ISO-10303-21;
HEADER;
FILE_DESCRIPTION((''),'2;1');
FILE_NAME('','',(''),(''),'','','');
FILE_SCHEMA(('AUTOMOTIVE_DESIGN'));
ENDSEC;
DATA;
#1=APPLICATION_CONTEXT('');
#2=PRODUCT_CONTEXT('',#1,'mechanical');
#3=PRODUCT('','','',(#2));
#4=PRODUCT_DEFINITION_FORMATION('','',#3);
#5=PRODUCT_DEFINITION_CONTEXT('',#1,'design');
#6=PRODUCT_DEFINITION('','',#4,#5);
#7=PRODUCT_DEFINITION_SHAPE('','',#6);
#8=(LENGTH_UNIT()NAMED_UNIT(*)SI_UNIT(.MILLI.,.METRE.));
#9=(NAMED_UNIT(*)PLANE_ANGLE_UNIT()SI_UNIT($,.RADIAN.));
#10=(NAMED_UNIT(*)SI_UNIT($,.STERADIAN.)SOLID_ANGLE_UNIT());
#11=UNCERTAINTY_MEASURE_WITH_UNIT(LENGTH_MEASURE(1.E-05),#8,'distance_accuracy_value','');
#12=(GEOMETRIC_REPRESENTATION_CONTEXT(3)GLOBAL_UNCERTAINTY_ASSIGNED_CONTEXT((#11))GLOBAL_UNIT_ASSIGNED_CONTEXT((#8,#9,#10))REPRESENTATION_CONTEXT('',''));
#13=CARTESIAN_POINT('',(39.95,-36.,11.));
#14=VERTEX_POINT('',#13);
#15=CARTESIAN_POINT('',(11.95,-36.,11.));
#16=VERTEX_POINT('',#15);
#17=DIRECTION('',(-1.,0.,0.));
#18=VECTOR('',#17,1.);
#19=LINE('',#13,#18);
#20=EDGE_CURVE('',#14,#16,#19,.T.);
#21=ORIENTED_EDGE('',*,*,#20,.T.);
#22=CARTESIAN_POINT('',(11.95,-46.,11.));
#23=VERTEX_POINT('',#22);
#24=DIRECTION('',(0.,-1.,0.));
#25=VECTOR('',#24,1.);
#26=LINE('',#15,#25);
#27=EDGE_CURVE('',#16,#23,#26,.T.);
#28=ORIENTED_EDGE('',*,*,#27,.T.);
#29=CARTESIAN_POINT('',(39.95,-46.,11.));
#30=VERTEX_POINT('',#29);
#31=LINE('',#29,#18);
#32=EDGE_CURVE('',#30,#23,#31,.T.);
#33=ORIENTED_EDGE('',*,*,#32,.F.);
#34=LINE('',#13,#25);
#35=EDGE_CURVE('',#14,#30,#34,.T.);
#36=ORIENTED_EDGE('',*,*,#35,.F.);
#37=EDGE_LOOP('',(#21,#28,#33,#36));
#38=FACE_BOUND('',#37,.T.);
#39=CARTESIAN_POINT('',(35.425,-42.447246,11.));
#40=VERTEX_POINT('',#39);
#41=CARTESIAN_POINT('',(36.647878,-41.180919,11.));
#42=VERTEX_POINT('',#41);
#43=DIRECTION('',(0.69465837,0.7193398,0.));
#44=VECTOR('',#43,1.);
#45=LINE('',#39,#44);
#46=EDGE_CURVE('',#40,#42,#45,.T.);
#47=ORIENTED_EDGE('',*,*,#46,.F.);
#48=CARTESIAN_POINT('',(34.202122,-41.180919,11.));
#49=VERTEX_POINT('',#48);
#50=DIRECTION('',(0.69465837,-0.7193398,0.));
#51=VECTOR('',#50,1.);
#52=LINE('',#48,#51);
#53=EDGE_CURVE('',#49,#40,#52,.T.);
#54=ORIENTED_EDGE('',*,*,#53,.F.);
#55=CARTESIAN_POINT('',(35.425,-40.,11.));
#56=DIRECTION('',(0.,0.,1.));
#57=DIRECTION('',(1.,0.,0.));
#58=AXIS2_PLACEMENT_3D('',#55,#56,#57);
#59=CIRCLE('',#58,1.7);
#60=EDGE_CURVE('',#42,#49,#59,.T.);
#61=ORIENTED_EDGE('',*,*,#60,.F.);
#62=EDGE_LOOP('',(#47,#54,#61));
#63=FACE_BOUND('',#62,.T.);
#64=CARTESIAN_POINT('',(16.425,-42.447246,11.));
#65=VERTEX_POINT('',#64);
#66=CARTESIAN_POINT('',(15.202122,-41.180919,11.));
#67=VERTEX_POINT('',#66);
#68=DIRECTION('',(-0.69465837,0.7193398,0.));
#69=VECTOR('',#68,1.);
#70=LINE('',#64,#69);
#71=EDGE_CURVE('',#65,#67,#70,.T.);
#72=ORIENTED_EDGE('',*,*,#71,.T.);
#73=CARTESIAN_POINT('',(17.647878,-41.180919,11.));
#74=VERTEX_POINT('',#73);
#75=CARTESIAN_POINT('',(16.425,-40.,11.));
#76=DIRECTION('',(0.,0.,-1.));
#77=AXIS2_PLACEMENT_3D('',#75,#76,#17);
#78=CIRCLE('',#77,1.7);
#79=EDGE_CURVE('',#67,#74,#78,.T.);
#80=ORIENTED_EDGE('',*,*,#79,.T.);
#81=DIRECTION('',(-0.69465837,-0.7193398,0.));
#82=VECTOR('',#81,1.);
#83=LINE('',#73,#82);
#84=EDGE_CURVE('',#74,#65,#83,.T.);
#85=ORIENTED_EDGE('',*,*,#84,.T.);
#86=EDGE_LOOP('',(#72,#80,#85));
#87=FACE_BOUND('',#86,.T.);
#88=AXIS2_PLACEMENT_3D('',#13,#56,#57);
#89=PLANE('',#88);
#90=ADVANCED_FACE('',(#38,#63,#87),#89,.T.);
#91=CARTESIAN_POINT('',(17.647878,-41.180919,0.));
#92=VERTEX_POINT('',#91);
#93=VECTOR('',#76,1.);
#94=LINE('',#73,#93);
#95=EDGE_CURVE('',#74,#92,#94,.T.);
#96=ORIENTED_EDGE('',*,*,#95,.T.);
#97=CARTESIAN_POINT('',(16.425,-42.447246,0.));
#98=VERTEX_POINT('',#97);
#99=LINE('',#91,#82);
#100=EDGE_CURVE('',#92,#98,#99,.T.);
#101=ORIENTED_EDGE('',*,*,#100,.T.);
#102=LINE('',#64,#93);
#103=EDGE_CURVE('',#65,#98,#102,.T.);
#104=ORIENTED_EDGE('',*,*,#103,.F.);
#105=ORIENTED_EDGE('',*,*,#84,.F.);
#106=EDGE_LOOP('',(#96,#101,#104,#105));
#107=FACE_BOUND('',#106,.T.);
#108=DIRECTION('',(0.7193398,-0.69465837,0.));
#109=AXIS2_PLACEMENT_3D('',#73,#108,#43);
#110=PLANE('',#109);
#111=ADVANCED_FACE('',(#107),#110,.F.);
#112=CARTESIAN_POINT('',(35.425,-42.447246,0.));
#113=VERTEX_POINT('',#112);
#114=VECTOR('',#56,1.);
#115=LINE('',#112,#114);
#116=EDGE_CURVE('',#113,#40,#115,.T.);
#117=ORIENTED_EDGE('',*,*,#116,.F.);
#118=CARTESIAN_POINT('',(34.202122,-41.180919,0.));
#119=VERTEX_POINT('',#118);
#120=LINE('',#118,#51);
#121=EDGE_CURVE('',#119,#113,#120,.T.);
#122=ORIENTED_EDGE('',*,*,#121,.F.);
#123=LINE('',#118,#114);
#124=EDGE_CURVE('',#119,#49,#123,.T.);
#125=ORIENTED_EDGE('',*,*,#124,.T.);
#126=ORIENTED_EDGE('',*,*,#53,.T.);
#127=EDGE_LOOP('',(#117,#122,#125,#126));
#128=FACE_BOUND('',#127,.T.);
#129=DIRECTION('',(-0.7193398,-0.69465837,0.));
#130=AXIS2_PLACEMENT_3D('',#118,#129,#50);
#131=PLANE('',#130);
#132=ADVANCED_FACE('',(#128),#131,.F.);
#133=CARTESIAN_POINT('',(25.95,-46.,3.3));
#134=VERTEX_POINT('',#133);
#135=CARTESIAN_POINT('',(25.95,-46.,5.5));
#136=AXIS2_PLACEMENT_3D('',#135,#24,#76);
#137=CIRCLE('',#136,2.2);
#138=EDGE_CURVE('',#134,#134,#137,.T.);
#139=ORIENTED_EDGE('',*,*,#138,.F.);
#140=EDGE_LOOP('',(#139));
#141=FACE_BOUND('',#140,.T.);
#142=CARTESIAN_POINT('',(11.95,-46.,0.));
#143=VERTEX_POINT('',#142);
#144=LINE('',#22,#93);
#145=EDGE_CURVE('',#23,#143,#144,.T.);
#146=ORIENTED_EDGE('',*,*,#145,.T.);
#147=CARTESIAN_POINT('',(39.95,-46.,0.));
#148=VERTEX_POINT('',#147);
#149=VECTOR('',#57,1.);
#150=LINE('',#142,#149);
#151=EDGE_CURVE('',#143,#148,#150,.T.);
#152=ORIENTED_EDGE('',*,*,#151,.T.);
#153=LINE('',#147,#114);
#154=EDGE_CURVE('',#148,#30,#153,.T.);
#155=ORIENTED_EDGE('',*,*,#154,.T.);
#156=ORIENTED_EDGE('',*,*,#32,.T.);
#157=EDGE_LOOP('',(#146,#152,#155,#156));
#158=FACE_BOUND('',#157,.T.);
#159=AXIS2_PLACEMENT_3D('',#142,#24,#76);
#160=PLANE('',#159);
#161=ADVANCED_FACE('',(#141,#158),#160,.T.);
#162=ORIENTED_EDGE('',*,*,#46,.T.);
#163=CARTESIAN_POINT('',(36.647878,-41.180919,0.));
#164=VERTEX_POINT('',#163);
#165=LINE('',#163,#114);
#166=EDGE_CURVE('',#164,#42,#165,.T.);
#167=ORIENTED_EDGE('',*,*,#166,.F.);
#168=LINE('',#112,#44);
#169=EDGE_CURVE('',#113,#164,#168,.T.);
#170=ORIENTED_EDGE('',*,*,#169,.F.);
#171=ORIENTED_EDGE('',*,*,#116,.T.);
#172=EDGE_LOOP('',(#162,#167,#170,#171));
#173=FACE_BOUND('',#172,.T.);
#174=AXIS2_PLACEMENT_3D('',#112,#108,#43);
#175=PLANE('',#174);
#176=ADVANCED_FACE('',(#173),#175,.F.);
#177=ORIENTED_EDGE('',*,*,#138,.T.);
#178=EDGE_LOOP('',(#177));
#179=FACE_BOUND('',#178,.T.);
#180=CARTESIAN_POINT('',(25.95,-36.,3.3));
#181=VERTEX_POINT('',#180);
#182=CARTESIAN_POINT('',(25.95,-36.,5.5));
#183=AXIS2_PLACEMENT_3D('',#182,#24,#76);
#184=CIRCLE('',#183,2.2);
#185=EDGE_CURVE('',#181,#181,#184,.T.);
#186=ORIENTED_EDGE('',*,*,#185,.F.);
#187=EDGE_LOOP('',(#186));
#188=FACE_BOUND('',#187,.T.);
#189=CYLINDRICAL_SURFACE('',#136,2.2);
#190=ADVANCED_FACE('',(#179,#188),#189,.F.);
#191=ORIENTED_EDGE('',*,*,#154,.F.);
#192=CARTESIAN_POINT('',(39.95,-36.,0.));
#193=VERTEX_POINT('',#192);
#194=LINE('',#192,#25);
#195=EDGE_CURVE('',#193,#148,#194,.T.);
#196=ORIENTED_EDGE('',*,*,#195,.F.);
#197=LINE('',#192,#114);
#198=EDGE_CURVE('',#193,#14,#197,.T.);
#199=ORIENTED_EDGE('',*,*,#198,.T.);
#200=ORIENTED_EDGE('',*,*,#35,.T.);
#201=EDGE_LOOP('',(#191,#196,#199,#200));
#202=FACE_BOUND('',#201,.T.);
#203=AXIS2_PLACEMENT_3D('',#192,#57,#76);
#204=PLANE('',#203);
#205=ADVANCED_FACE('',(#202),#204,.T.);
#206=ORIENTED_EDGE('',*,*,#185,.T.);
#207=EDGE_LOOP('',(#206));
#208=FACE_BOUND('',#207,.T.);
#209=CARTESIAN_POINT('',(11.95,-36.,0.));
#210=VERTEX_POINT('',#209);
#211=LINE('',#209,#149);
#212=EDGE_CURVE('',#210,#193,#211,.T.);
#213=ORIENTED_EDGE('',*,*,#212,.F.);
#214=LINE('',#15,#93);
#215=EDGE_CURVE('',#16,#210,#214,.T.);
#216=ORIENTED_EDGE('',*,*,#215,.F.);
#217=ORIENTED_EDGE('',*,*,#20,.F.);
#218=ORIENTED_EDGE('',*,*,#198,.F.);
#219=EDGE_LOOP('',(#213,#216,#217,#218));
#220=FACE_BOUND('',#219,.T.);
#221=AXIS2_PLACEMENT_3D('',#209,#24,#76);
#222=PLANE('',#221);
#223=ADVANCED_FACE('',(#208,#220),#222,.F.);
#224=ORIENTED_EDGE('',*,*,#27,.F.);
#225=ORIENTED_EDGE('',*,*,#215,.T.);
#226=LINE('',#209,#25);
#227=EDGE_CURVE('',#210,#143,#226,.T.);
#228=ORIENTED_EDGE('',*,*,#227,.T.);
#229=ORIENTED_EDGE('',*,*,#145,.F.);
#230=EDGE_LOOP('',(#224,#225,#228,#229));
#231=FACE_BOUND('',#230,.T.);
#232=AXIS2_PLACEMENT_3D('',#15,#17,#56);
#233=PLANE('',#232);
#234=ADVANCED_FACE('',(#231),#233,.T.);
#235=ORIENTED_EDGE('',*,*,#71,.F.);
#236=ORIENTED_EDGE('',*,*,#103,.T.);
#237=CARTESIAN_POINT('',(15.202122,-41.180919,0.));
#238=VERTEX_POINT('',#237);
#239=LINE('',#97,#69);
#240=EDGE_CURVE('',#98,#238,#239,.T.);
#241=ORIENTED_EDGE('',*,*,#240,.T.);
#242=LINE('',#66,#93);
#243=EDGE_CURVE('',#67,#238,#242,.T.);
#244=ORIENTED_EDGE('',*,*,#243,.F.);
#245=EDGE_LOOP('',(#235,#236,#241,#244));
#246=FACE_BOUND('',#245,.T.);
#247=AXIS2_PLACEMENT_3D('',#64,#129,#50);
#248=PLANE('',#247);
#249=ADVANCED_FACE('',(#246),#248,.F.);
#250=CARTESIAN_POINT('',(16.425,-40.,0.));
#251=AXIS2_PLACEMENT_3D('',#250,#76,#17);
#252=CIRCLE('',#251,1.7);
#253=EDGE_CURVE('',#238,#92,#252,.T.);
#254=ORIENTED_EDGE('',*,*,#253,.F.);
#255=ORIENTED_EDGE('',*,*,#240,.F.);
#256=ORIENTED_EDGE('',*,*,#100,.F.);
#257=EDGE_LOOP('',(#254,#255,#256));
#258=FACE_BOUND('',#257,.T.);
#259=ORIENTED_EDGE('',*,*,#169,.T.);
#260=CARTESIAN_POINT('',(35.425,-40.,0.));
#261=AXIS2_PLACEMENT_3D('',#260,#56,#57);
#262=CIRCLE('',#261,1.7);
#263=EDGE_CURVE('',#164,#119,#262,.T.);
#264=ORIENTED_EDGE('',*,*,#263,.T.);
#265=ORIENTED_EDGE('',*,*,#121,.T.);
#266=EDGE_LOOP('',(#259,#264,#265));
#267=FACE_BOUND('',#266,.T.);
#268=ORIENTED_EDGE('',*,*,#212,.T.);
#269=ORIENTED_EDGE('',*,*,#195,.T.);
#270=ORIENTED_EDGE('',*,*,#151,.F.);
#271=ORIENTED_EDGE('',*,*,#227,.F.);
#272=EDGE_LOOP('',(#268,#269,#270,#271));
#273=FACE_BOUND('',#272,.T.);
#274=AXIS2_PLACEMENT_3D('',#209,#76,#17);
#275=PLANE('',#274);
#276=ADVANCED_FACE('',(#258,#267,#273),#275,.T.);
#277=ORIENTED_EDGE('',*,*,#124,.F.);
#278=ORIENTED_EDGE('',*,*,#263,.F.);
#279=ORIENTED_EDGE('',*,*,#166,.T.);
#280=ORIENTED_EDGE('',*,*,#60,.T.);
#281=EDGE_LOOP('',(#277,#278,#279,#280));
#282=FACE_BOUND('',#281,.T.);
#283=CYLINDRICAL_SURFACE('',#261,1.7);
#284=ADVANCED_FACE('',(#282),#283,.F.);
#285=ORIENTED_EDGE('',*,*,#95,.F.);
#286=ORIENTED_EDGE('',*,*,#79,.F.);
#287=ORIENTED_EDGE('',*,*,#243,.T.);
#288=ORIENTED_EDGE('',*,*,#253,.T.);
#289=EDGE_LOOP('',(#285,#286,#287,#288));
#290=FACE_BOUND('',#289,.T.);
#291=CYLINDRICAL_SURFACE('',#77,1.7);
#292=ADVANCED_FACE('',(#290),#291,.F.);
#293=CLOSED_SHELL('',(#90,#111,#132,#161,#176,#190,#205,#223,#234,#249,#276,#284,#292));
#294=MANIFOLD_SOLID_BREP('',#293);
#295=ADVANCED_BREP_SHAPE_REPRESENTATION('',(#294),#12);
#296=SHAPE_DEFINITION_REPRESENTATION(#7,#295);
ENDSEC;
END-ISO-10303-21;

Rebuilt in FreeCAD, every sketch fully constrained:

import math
import FreeCAD as App
import Part
import Sketcher
Q = App.Units.Quantity

doc = App.newDocument("Part")
params = doc.addObject("Spreadsheet::Sheet", "Params")
for row, (alias, value) in enumerate([
    ("sketch1_width", "28 mm"),
    ("sketch1_height", "11 mm"),
    ("pad1_length", "10 mm"),
    ("sketch2_radius", "1.7 mm"),
    ("sketch3_radius", "1.7 mm"),
    ("sketch4_diameter", "4.4 mm"),
    ("hole_diameter", "4.4 mm"),
], start=1):
    params.set(f"A{row}", alias)
    params.set(f"B{row}", "=" + value)
    params.setAlias(f"B{row}", alias)

body = doc.addObject("PartDesign::Body", "Body")

# Sketch on XZ plane
sketch1 = doc.addObject("Sketcher::SketchObject", "Sketch")
body.addObject(sketch1)
sketch1.AttachmentSupport = (doc.XZ_Plane, [""])
sketch1.MapMode = "FlatFace"
sketch1.AttachmentOffset = App.Placement(App.Vector(0, 0, 46), App.Rotation())
sketch1.addGeometry(Part.LineSegment(App.Vector(12, 11, 0), App.Vector(12, 0, 0)), False)
sketch1.addGeometry(Part.LineSegment(App.Vector(12, 0, 0), App.Vector(40, 0, 0)), False)
sketch1.addGeometry(Part.LineSegment(App.Vector(40, 0, 0), App.Vector(40, 11, 0)), False)
sketch1.addGeometry(Part.LineSegment(App.Vector(40, 11, 0), App.Vector(12, 11, 0)), False)
sketch1.addConstraint(Sketcher.Constraint("Coincident", 0, 2, 1, 1))
sketch1.addConstraint(Sketcher.Constraint("Coincident", 1, 2, 2, 1))
sketch1.addConstraint(Sketcher.Constraint("Coincident", 2, 2, 3, 1))
sketch1.addConstraint(Sketcher.Constraint("Coincident", 3, 2, 0, 1))
sketch1.addConstraint(Sketcher.Constraint("Vertical", 0))
sketch1.addConstraint(Sketcher.Constraint("Horizontal", 1))
sketch1.addConstraint(Sketcher.Constraint("Vertical", 2))
sketch1.addConstraint(Sketcher.Constraint("Horizontal", 3))
sketch1.addConstraint(Sketcher.Constraint("PointOnObject", 0, 2, -1))
sketch1.addConstraint(Sketcher.Constraint("DistanceX", 1, 1, 1, 2, Q("28 mm")))
sketch1.addConstraint(Sketcher.Constraint("DistanceY", 0, 2, 0, 1, Q("11 mm")))
sketch1.addConstraint(Sketcher.Constraint("DistanceX", -1, 1, 0, 2, Q("11.95 mm")))
sketch1.setExpression("Constraints[9]", "Params.sketch1_width")
sketch1.setExpression("Constraints[10]", "Params.sketch1_height")
pad1 = doc.addObject("PartDesign::Pad", "Pad")
body.addObject(pad1)
pad1.Profile = sketch1
pad1.setExpression("Length", "Params.pad1_length")
pad1.Reversed = True

# Sketch on XY plane
sketch2 = doc.addObject("Sketcher::SketchObject", "Sketch001")
body.addObject(sketch2)
sketch2.AttachmentSupport = (doc.XY_Plane, [""])
sketch2.MapMode = "FlatFace"
sketch2.AttachmentOffset = App.Placement(App.Vector(0, 0, 11), App.Rotation())
sketch2.addGeometry(Part.LineSegment(App.Vector(35.4, -42.4, 0), App.Vector(36.6, -41.2, 0)), False)
sketch2.addGeometry(Part.ArcOfCircle(Part.Circle(App.Vector(35.4, -40, 0), App.Vector(0, 0, 1), 1.7), math.radians(-44), math.radians(224)), False)
sketch2.addGeometry(Part.LineSegment(App.Vector(34.2, -41.2, 0), App.Vector(35.4, -42.4, 0)), False)
sketch2.addConstraint(Sketcher.Constraint("Tangent", 0, 2, 1, 1))
sketch2.addConstraint(Sketcher.Constraint("Tangent", 1, 2, 2, 1))
sketch2.addConstraint(Sketcher.Constraint("Coincident", 2, 2, 0, 1))
sketch2.addConstraint(Sketcher.Constraint("Horizontal", 0, 2, 1, 2))
sketch2.addConstraint(Sketcher.Constraint("Radius", 1, Q("1.7 mm")))
sketch2.addConstraint(Sketcher.Constraint("Angle", 0, Q("46 deg")))
sketch2.addConstraint(Sketcher.Constraint("DistanceY", 1, 3, -1, 1, Q("40 mm")))
sketch2.addConstraint(Sketcher.Constraint("DistanceX", -1, 1, 1, 3, Q("35.425 mm")))
sketch2.setExpression("Constraints[4]", "Params.sketch2_radius")
pocket1 = doc.addObject("PartDesign::Pocket", "Pocket")
body.addObject(pocket1)
pocket1.Profile = sketch2
pocket1.Type = "ThroughAll"

# Sketch on XY plane
sketch3 = doc.addObject("Sketcher::SketchObject", "Sketch002")
body.addObject(sketch3)
sketch3.AttachmentSupport = (doc.XY_Plane, [""])
sketch3.MapMode = "FlatFace"
sketch3.addGeometry(Part.LineSegment(App.Vector(17.6, -41.2, 0), App.Vector(16.4, -42.4, 0)), False)
sketch3.addGeometry(Part.LineSegment(App.Vector(16.4, -42.4, 0), App.Vector(15.2, -41.2, 0)), False)
sketch3.addGeometry(Part.ArcOfCircle(Part.Circle(App.Vector(16.4, -40, 0), App.Vector(0, 0, 1), 1.7), math.radians(-44), math.radians(224)), False)
sketch3.addConstraint(Sketcher.Constraint("Coincident", 0, 2, 1, 1))
sketch3.addConstraint(Sketcher.Constraint("Tangent", 1, 2, 2, 2))
sketch3.addConstraint(Sketcher.Constraint("Tangent", 2, 1, 0, 1))
sketch3.addConstraint(Sketcher.Constraint("Horizontal", 1, 2, 2, 1))
sketch3.addConstraint(Sketcher.Constraint("Radius", 2, Q("1.7 mm")))
sketch3.addConstraint(Sketcher.Constraint("Angle", 0, Q("-134 deg")))
sketch3.addConstraint(Sketcher.Constraint("DistanceY", 2, 3, -1, 1, Q("40 mm")))
sketch3.addConstraint(Sketcher.Constraint("DistanceX", -1, 1, 2, 3, Q("16.425 mm")))
sketch3.setExpression("Constraints[4]", "Params.sketch3_radius")
pocket2 = doc.addObject("PartDesign::Pocket", "Pocket001")
body.addObject(pocket2)
pocket2.Profile = sketch3
pocket2.Type = "ThroughAll"
pocket2.Reversed = True

# Sketch on XZ plane
sketch4 = doc.addObject("Sketcher::SketchObject", "Sketch003")
body.addObject(sketch4)
sketch4.AttachmentSupport = (doc.XZ_Plane, [""])
sketch4.MapMode = "FlatFace"
sketch4.AttachmentOffset = App.Placement(App.Vector(0, 0, 46), App.Rotation())
sketch4.addGeometry(Part.Circle(App.Vector(25.9, 5.5, 0), App.Vector(0, 0, 1), 2.2), False)
sketch4.addConstraint(Sketcher.Constraint("Diameter", 0, Q("4.4 mm")))
sketch4.addConstraint(Sketcher.Constraint("DistanceY", -1, 1, 0, 3, Q("5.5 mm")))
sketch4.addConstraint(Sketcher.Constraint("DistanceX", -1, 1, 0, 3, Q("25.95 mm")))
sketch4.setExpression("Constraints[0]", "Params.sketch4_diameter")
doc.recompute()
hole = doc.addObject("PartDesign::Hole", "Hole")
body.addObject(hole)
hole.Profile = sketch4
hole.ThreadType = "None"
hole.setExpression("Diameter", "Params.hole_diameter")
hole.DepthType = "ThroughAll"

doc.recompute()
